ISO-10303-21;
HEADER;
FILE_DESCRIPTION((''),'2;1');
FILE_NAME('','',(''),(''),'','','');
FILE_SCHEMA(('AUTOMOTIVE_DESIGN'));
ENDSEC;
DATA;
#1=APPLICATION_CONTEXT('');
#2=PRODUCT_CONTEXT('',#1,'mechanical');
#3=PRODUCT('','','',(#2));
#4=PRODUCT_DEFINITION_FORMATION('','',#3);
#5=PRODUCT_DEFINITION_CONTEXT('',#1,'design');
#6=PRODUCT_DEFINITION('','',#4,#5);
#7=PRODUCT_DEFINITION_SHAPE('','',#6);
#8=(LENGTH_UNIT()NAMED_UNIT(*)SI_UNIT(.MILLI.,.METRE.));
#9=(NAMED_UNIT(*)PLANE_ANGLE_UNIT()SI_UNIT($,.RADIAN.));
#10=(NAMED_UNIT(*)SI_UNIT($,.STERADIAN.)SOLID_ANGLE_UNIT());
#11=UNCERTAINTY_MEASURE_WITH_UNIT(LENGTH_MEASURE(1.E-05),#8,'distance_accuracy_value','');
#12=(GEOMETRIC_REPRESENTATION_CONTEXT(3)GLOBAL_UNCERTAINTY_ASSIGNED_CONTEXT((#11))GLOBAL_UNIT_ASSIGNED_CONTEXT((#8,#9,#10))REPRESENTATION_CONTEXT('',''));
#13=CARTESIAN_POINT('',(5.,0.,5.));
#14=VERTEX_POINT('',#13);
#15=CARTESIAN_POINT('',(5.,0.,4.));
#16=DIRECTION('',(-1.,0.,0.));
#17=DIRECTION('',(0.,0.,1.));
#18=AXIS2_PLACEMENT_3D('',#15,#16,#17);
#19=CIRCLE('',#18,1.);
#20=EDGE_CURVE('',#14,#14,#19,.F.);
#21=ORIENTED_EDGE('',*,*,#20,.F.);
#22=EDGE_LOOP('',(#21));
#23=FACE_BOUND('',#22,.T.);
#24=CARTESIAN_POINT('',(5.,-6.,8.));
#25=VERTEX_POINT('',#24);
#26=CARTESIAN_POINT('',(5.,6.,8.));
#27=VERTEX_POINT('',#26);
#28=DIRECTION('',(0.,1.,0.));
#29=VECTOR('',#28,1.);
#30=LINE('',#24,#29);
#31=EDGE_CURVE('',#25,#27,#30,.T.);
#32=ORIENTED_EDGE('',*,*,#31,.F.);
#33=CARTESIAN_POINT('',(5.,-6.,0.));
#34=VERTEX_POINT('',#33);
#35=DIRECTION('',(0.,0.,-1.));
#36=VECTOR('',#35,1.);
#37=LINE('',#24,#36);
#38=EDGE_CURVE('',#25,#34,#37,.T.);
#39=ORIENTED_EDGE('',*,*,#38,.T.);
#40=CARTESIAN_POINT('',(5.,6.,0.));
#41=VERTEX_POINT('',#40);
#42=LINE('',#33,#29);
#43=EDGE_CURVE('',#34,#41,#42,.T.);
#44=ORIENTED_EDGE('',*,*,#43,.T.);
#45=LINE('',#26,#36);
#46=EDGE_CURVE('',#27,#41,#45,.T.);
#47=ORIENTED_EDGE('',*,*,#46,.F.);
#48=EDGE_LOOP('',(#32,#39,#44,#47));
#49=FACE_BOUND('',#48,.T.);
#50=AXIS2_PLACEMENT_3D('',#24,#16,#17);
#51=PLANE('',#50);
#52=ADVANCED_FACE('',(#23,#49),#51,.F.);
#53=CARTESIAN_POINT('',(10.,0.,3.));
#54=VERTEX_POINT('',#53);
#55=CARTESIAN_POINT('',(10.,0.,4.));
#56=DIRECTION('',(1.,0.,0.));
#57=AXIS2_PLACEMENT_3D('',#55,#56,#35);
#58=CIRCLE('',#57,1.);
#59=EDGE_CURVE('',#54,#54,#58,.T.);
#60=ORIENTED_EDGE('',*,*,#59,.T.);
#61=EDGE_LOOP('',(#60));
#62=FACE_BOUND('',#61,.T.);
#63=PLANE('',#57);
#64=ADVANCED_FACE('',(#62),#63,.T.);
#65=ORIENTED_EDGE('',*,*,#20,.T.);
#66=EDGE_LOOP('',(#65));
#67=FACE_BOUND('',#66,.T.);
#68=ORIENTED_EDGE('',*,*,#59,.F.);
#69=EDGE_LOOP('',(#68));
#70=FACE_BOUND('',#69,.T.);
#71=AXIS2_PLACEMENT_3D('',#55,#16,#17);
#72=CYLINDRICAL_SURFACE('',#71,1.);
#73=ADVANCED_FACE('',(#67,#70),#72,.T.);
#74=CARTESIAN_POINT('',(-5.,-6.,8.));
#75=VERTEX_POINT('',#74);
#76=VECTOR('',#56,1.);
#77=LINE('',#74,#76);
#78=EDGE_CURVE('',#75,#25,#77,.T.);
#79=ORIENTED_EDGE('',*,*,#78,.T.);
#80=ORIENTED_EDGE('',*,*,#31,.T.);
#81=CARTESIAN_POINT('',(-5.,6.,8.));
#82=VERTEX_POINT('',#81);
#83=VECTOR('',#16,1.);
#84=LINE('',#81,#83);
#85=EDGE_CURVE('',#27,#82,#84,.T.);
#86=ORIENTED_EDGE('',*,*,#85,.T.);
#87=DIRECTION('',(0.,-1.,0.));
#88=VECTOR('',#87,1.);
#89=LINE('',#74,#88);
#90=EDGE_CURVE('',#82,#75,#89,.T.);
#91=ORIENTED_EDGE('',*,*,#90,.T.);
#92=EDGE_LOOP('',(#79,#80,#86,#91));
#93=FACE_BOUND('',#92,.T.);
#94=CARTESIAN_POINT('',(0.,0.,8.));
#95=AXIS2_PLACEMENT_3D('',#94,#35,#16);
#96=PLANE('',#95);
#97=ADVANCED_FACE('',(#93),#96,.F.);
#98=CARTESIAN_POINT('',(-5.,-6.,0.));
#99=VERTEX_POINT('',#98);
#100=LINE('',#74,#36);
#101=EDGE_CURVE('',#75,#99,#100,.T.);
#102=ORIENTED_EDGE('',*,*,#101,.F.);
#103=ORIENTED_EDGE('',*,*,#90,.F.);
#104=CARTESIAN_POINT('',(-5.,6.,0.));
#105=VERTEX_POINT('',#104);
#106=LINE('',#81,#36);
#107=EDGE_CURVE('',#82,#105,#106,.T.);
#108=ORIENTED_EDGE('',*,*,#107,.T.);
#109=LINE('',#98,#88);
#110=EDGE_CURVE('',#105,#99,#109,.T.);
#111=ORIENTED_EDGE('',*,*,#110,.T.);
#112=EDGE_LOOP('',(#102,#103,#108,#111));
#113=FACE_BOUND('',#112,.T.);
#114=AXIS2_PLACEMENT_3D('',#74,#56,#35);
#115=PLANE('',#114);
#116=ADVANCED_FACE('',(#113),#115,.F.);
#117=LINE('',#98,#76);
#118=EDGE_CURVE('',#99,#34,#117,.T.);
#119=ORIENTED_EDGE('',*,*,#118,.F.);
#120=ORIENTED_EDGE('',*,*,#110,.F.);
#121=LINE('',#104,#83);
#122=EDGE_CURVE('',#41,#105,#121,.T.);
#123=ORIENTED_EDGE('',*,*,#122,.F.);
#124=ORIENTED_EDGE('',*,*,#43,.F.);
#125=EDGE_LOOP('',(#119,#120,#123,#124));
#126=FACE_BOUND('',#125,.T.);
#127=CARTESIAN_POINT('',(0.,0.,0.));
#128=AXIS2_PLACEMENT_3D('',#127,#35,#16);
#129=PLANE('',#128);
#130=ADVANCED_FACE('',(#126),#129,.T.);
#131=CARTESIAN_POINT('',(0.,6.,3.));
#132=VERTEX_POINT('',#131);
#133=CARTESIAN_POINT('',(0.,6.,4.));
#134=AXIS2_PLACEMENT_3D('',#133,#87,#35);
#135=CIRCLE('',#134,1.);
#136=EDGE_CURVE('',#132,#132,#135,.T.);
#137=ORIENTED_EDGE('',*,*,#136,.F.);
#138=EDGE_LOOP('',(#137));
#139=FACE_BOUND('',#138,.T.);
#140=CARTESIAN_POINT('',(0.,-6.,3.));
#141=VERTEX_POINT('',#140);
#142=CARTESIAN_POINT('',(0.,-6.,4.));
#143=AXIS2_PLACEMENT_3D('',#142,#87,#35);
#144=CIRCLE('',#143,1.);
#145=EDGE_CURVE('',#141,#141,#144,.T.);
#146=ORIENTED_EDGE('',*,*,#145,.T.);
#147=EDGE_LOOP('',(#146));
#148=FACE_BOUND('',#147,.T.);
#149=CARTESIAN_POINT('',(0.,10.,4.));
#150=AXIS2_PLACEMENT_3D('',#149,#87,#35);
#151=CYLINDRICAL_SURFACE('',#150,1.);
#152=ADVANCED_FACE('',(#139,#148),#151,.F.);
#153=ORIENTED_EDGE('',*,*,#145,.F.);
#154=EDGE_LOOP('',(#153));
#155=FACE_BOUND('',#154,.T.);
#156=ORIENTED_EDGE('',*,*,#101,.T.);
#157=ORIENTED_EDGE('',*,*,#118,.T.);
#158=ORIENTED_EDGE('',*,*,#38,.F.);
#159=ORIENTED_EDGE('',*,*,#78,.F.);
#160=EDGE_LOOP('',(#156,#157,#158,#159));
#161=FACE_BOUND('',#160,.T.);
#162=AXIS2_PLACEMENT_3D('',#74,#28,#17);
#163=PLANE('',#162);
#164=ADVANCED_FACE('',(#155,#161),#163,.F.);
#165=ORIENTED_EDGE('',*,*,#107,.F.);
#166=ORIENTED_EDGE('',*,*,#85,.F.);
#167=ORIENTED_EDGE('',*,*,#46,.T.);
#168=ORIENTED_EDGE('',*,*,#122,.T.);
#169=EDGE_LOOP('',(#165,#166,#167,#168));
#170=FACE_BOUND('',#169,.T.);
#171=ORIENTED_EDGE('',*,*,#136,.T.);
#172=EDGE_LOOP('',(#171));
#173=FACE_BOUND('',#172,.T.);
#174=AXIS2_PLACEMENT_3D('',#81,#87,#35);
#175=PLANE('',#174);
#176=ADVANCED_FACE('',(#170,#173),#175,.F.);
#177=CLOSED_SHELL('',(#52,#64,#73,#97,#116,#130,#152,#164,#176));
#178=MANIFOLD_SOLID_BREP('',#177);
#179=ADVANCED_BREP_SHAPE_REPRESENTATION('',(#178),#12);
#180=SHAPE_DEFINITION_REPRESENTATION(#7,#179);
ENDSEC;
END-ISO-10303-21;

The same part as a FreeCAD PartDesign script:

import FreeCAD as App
import Part
import Sketcher
from FreeCAD import Vector


def add_polygon(sketch, points):
    """Adds a closed chain of lines whose ends are joined by coincident constraints."""
    first, n = sketch.GeometryCount, len(points)
    for a, b in zip(points, points[1:] + points[:1]):
        sketch.addGeometry(Part.LineSegment(App.Vector(*a, 0), App.Vector(*b, 0)), False)
    for i in range(n):
        sketch.addConstraint(Sketcher.Constraint("Coincident", first + i, 2, first + (i + 1) % n, 1))

doc = App.newDocument("Part")
body = doc.addObject("PartDesign::Body", "Body")

sketch1 = body.newObject("Sketcher::SketchObject", "Sketch")
sketch1.AttachmentSupport = (doc.getObject("XY_Plane"), [""])
sketch1.MapMode = "FlatFace"
add_polygon(sketch1, [(-5, 6), (-5, -6), (5, -6), (5, 6)])
sketch1.addConstraint(Sketcher.Constraint("Vertical", 0))
sketch1.addConstraint(Sketcher.Constraint("Horizontal", 1))
sketch1.addConstraint(Sketcher.Constraint("Vertical", 2))
sketch1.addConstraint(Sketcher.Constraint("Horizontal", 3))
sketch1.addConstraint(Sketcher.Constraint("Symmetric", 0, 2, 2, 2, -1, 1))
sketch1.addConstraint(Sketcher.Constraint("DistanceX", 1, 1, 1, 2, 10.0))
sketch1.addConstraint(Sketcher.Constraint("DistanceY", 0, 2, 0, 1, 12.0))
pad1 = body.newObject("PartDesign::Pad", "Pad")
pad1.Profile = sketch1
pad1.Length = 8

sketch2 = body.newObject("Sketcher::SketchObject", "Sketch001")
sketch2.AttachmentSupport = (doc.getObject("YZ_Plane"), [""])
sketch2.MapMode = "FlatFace"
sketch2.AttachmentOffset = App.Placement(Vector(0, 0, 5), App.Rotation())
sketch2.addGeometry(Part.Circle(Vector(0, 4, 0), Vector(0, 0, 1), 1), False)
sketch2.addConstraint(Sketcher.Constraint("PointOnObject", 0, 3, -2))
sketch2.addConstraint(Sketcher.Constraint("Diameter", 0, 2.0))
sketch2.addConstraint(Sketcher.Constraint("DistanceY", -1, 1, 0, 3, 4.0))
pad2 = body.newObject("PartDesign::Pad", "Pad001")
pad2.Profile = sketch2
pad2.Length = 5

sketch3 = body.newObject("Sketcher::SketchObject", "Sketch002")
sketch3.AttachmentSupport = (doc.getObject("XZ_Plane"), [""])
sketch3.MapMode = "FlatFace"
sketch3.AttachmentOffset = App.Placement(Vector(0, 0, 6), App.Rotation())
sketch3.addGeometry(Part.Circle(Vector(0, 4, 0), Vector(0, 0, 1), 1), False)
sketch3.addConstraint(Sketcher.Constraint("PointOnObject", 0, 3, -2))
sketch3.addConstraint(Sketcher.Constraint("Diameter", 0, 2.0))
sketch3.addConstraint(Sketcher.Constraint("DistanceY", -1, 1, 0, 3, 4.0))
pocket1 = body.newObject("PartDesign::Pocket", "Pocket")
pocket1.Profile = sketch3
pocket1.Length = 16

doc.recompute()
